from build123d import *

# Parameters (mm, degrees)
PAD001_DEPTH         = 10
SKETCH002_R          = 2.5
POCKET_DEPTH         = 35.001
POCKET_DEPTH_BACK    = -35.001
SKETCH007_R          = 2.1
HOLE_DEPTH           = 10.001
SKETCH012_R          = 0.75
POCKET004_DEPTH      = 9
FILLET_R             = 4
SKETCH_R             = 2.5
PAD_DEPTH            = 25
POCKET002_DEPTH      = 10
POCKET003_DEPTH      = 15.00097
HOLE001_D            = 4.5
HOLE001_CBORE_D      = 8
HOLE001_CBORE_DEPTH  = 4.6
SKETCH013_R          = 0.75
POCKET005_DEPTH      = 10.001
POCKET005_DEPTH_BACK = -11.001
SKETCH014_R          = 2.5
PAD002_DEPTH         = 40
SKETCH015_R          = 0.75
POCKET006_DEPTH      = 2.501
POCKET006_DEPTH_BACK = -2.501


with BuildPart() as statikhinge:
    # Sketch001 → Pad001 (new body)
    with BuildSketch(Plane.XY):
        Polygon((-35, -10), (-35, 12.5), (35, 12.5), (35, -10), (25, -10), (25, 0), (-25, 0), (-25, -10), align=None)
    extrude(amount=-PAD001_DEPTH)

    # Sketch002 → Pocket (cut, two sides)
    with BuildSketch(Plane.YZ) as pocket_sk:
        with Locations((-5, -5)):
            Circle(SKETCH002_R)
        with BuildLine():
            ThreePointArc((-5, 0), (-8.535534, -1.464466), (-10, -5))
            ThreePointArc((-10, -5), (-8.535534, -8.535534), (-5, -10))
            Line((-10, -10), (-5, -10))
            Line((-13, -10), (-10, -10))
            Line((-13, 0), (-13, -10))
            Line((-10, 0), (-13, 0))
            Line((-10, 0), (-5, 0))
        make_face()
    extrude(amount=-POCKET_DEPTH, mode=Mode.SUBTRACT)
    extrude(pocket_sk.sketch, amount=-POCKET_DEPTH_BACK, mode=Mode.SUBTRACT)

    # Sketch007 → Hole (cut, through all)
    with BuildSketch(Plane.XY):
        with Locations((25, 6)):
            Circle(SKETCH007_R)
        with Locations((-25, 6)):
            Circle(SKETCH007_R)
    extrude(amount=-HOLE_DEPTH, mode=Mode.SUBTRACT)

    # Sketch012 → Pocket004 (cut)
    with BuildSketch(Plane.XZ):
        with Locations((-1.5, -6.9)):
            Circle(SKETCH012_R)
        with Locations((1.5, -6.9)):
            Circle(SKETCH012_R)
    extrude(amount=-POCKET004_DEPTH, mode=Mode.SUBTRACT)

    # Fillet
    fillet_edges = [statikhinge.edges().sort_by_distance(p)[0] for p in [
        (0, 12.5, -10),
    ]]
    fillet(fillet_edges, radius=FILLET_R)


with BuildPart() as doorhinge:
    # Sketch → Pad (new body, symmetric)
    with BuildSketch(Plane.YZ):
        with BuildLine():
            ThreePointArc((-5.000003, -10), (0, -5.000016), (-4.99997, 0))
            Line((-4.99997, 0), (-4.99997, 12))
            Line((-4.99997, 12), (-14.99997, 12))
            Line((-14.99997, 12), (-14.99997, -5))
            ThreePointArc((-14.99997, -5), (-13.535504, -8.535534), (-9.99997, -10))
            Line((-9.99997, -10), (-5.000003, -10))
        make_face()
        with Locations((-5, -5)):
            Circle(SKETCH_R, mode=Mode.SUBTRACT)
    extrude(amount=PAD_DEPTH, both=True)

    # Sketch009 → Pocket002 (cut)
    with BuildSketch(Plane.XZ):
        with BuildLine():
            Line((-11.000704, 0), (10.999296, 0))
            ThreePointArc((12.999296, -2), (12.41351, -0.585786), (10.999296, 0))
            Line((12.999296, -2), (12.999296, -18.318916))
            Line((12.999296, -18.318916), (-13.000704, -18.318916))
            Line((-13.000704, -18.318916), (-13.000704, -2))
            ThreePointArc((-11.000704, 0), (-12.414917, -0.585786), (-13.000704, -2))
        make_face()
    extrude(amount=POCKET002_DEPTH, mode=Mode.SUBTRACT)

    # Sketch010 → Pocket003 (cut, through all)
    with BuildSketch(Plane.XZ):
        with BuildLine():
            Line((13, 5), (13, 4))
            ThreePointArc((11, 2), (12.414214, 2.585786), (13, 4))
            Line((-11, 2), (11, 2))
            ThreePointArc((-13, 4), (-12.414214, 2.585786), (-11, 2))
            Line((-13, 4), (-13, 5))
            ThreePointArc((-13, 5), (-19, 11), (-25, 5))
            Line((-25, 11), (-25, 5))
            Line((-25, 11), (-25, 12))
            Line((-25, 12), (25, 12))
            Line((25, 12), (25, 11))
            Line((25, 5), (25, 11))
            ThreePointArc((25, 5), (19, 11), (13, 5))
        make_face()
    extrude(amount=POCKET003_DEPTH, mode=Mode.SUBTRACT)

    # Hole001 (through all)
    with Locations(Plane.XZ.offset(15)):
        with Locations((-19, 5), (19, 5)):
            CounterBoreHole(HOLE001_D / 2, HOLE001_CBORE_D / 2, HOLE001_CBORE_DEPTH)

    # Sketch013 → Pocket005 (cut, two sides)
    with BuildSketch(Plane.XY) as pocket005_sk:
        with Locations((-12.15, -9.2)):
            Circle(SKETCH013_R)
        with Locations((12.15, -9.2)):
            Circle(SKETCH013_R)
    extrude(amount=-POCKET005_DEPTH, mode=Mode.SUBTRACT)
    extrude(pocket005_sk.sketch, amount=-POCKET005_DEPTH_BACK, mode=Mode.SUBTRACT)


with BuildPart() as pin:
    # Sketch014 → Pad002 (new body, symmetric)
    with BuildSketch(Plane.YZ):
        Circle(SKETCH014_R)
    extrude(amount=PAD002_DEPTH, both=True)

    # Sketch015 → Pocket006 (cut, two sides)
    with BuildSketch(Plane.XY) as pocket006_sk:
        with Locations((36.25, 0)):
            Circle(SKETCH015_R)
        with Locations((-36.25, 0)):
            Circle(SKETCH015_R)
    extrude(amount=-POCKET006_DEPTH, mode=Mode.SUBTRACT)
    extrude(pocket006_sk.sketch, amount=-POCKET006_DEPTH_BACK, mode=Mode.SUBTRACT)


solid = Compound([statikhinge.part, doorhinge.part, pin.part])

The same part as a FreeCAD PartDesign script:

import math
import FreeCAD as App
import Part
import Sketcher

V = App.Vector
Q = App.Units.Quantity


def edges_at(feature, points):
    """Names of the edges that pass closest to the given points."""
    edges = feature.Shape.Edges
    near = lambda p: min(range(len(edges)), key=lambda i: edges[i].distToShape(Part.Vertex(*p))[0])
    return sorted({f"Edge{near(p) + 1}" for p in points})

doc = App.newDocument("Part")
body = doc.addObject("PartDesign::Body", "Body")

# Sketch on XY plane
sketch1 = doc.addObject("Sketcher::SketchObject", "Sketch")
body.addObject(sketch1)
sketch1.AttachmentSupport = (doc.XY_Plane, [""])
sketch1.MapMode = "FlatFace"
sketch1.addGeometry([
    Part.LineSegment(V(-35, 12.5, 0), V(-35, -10, 0)),  # 0
    Part.LineSegment(V(-35, -10, 0), V(-25, -10, 0)),  # 1
    Part.LineSegment(V(-25, -10, 0), V(-25, 0, 0)),  # 2
    Part.LineSegment(V(-25, 0, 0), V(25, 0, 0)),  # 3
    Part.LineSegment(V(25, 0, 0), V(25, -10, 0)),  # 4
    Part.LineSegment(V(25, -10, 0), V(35, -10, 0)),  # 5
    Part.LineSegment(V(35, -10, 0), V(35, 12.5, 0)),  # 6
    Part.LineSegment(V(35, 12.5, 0), V(-35, 12.5, 0)),  # 7
], False)
sketch1.addConstraint([
    Sketcher.Constraint("Coincident", 0, 2, 1, 1),
    Sketcher.Constraint("Coincident", 1, 2, 2, 1),
    Sketcher.Constraint("Coincident", 2, 2, 3, 1),
    Sketcher.Constraint("Coincident", 3, 2, 4, 1),
    Sketcher.Constraint("Coincident", 4, 2, 5, 1),
    Sketcher.Constraint("Coincident", 5, 2, 6, 1),
    Sketcher.Constraint("Coincident", 6, 2, 7, 1),
    Sketcher.Constraint("Coincident", 7, 2, 0, 1),
    Sketcher.Constraint("Vertical", 0),
    Sketcher.Constraint("Horizontal", 1),
    Sketcher.Constraint("Vertical", 2),
    Sketcher.Constraint("Horizontal", 3),
    Sketcher.Constraint("Vertical", 4),
    Sketcher.Constraint("Horizontal", 5),
    Sketcher.Constraint("Vertical", 6),
    Sketcher.Constraint("Horizontal", 7),
    Sketcher.Constraint("Symmetric", 2, 2, 3, 2, -1, 1),
    Sketcher.Constraint("Symmetric", 0, 2, 5, 2, -2),
    Sketcher.Constraint("Equal", 5, 2),
    Sketcher.Constraint("DistanceX", 1, 1, 1, 2, Q("10 mm")),
    Sketcher.Constraint("DistanceX", 3, 1, 3, 2, Q("50 mm")),
    Sketcher.Constraint("DistanceY", 0, 2, 0, 1, Q("22.5 mm")),
])
pad1 = doc.addObject("PartDesign::Pad", "Pad")
body.addObject(pad1)
pad1.Profile = sketch1
pad1.Length = 10
pad1.Reversed = True

# Sketch on YZ plane
sketch2 = doc.addObject("Sketcher::SketchObject", "Sketch001")
body.addObject(sketch2)
sketch2.AttachmentSupport = (doc.YZ_Plane, [""])
sketch2.MapMode = "FlatFace"
sketch2.addGeometry([
    Part.Circle(V(-5, -5, 0), V(0, 0, 1), 2.5),  # 0
    Part.ArcOfCircle(Part.Circle(V(-5, -5, 0), V(0, 0, 1), 5), math.radians(89.999996), math.radians(180.000004)),  # 1
    Part.LineSegment(V(-5, 0, 0), V(-13, 0, 0)),  # 2
    Part.LineSegment(V(-13, 0, 0), V(-13, -10, 0)),  # 3
    Part.LineSegment(V(-13, -10, 0), V(-5, -10, 0)),  # 4
    Part.ArcOfCircle(Part.Circle(V(-5, -5, 0), V(0, 0, 1), 5), math.radians(179.999996), math.radians(270.000004)),  # 5
], False)
sketch2.addConstraint([
    Sketcher.Constraint("Tangent", 1, 1, 2, 1),
    Sketcher.Constraint("Coincident", 2, 2, 3, 1),
    Sketcher.Constraint("Coincident", 3, 2, 4, 1),
    Sketcher.Constraint("Tangent", 4, 2, 5, 2),
    Sketcher.Constraint("Tangent", 5, 1, 1, 2),
    Sketcher.Constraint("Horizontal", 2),
    Sketcher.Constraint("Vertical", 3),
    Sketcher.Constraint("Horizontal", 4),
    Sketcher.Constraint("Coincident", 1, 3, 0, 3),
    Sketcher.Constraint("Equal", 1, 5),
    Sketcher.Constraint("PointOnObject", 1, 1, -1),
    Sketcher.Constraint("Horizontal", 1, 3, 5, 1),
    Sketcher.Constraint("Diameter", 0, Q("5 mm")),
    Sketcher.Constraint("Radius", 1, Q("5 mm")),
    Sketcher.Constraint("DistanceX", 2, 2, 2, 1, Q("8 mm")),
    Sketcher.Constraint("DistanceX", 0, 3, -1, 1, Q("5 mm")),
])
pocket1 = doc.addObject("PartDesign::Pocket", "Pocket")
body.addObject(pocket1)
pocket1.Profile = sketch2
pocket1.Type = "ThroughAll"
pocket1.Midplane = True

# Sketch on XY plane
sketch3 = doc.addObject("Sketcher::SketchObject", "Sketch002")
body.addObject(sketch3)
sketch3.AttachmentSupport = (doc.XY_Plane, [""])
sketch3.MapMode = "FlatFace"
sketch3.addGeometry([
    Part.Circle(V(25, 6, 0), V(0, 0, 1), 2.1),
    Part.Circle(V(-25, 6, 0), V(0, 0, 1), 2.1),
], False)
sketch3.addConstraint([
    Sketcher.Constraint("Equal", 0, 1),
    Sketcher.Constraint("Symmetric", 0, 3, 1, 3, -2),
    Sketcher.Constraint("Diameter", 0, Q("4.2 mm")),
    Sketcher.Constraint("DistanceX", -1, 1, 0, 3, Q("25 mm")),
    Sketcher.Constraint("DistanceY", -1, 1, 0, 3, Q("6 mm")),
])
pocket2 = doc.addObject("PartDesign::Pocket", "Pocket001")
body.addObject(pocket2)
pocket2.Profile = sketch3
pocket2.Type = "ThroughAll"

# Sketch on XZ plane
sketch4 = doc.addObject("Sketcher::SketchObject", "Sketch003")
body.addObject(sketch4)
sketch4.AttachmentSupport = (doc.XZ_Plane, [""])
sketch4.MapMode = "FlatFace"
sketch4.addGeometry([
    Part.Circle(V(-1.5, -6.9, 0), V(0, 0, 1), 0.75),
    Part.Circle(V(1.5, -6.9, 0), V(0, 0, 1), 0.75),
], False)
sketch4.addConstraint([
    Sketcher.Constraint("Equal", 0, 1),
    Sketcher.Constraint("Symmetric", 0, 3, 1, 3, -2),
    Sketcher.Constraint("Diameter", 0, Q("1.5 mm")),
    Sketcher.Constraint("DistanceX", 0, 3, 1, 3, Q("3 mm")),
    Sketcher.Constraint("DistanceY", 0, 3, -1, 1, Q("6.9 mm")),
])
pocket3 = doc.addObject("PartDesign::Pocket", "Pocket002")
body.addObject(pocket3)
pocket3.Profile = sketch4
pocket3.Length = 9
doc.recompute()

fillet = doc.addObject("PartDesign::Fillet", "Fillet")
body.addObject(fillet)
fillet.Base = (pocket3, edges_at(pocket3, [(0, 12.5, -10)]))
fillet.Radius = 4
body2 = doc.addObject("PartDesign::Body", "Body001")

# Sketch on YZ plane
sketch5 = doc.addObject("Sketcher::SketchObject", "Sketch004")
body2.addObject(sketch5)
sketch5.AttachmentSupport = (doc.getObject("YZ_Plane001"), [""])
sketch5.MapMode = "FlatFace"
sketch5.addGeometry([
    Part.ArcOfCircle(Part.Circle(V(-5, -5, 0), V(0, 0, 1), 5), math.radians(-90.000034), math.radians(89.999656)),  # 0
    Part.LineSegment(V(-4.99997, 0, 0), V(-4.99997, 12, 0)),  # 1
    Part.LineSegment(V(-4.99997, 12, 0), V(-14.99997, 12, 0)),  # 2
    Part.LineSegment(V(-14.99997, 12, 0), V(-14.99997, -5, 0)),  # 3
    Part.ArcOfCircle(Part.Circle(V(-9.99997, -5, 0), V(0, 0, 1), 5), math.radians(179.999996), math.radians(270.000004)),  # 4
    Part.LineSegment(V(-9.99997, -10, 0), V(-5.000003, -10, 0)),  # 5
    Part.Circle(V(-5, -5, 0), V(0, 0, 1), 2.5),  # 6
], False)
sketch5.addConstraint([
    Sketcher.Constraint("Coincident", 0, 2, 1, 1),
    Sketcher.Constraint("Coincident", 1, 2, 2, 1),
    Sketcher.Constraint("Coincident", 2, 2, 3, 1),
    Sketcher.Constraint("Tangent", 3, 2, 4, 1),
    Sketcher.Constraint("Tangent", 4, 2, 5, 1),
    Sketcher.Constraint("Tangent", 5, 2, 0, 1),
    Sketcher.Constraint("Vertical", 1),
    Sketcher.Constraint("Horizontal", 2),
    Sketcher.Constraint("Vertical", 3),
    Sketcher.Constraint("Horizontal", 5),
    Sketcher.Constraint("Coincident", 6, 3, 0, 3),
    Sketcher.Constraint("Equal", 0, 4),
    Sketcher.Constraint("PointOnObject", 0, 2, -1),
    Sketcher.Constraint("Diameter", 6, Q("5 mm")),
    Sketcher.Constraint("Radius", 0, Q("5 mm")),
    Sketcher.Constraint("DistanceX", 2, 2, 2, 1, Q("10 mm")),
    Sketcher.Constraint("DistanceY", 1, 1, 1, 2, Q("12 mm")),
    Sketcher.Constraint("DistanceX", 0, 3, -1, 1, Q("5 mm")),
    Sketcher.Constraint("DistanceX", 5, 1, 5, 2, Q("4.999967 mm")),
])
pad2 = doc.addObject("PartDesign::Pad", "Pad001")
body2.addObject(pad2)
pad2.Profile = sketch5
pad2.Length = 50
pad2.Midplane = True

# Sketch on XZ plane
sketch6 = doc.addObject("Sketcher::SketchObject", "Sketch005")
body2.addObject(sketch6)
sketch6.AttachmentSupport = (doc.getObject("XZ_Plane001"), [""])
sketch6.MapMode = "FlatFace"
sketch6.addGeometry([
    Part.LineSegment(V(10.999296, 0, 0), V(-11.000704, 0, 0)),  # 0
    Part.ArcOfCircle(Part.Circle(V(-11.000704, -2, 0), V(0, 0, 1), 2), math.radians(90.000006), math.radians(179.999994)),  # 1
    Part.LineSegment(V(-13.000704, -2, 0), V(-13.000704, -18.318916, 0)),  # 2
    Part.LineSegment(V(-13.000704, -18.318916, 0), V(12.999296, -18.318916, 0)),  # 3
    Part.LineSegment(V(12.999296, -18.318916, 0), V(12.999296, -2, 0)),  # 4
    Part.ArcOfCircle(Part.Circle(V(10.999297, -1.999999, 0), V(0, 0, 1), 1.999999), math.radians(-0.000043), math.radians(90.000043)),  # 5
], False)
sketch6.addConstraint([
    Sketcher.Constraint("Tangent", 0, 2, 1, 1),
    Sketcher.Constraint("Tangent", 1, 2, 2, 1),
    Sketcher.Constraint("Coincident", 2, 2, 3, 1),
    Sketcher.Constraint("Coincident", 3, 2, 4, 1),
    Sketcher.Constraint("Tangent", 4, 2, 5, 1),
    Sketcher.Constraint("Tangent", 5, 2, 0, 1),
    Sketcher.Constraint("Horizontal", 0),
    Sketcher.Constraint("Vertical", 2),
    Sketcher.Constraint("Horizontal", 3),
    Sketcher.Constraint("Vertical", 4),
    Sketcher.Constraint("Equal", 1, 5),
    Sketcher.Constraint("PointOnObject", 0, 2, -1),
    Sketcher.Constraint("Radius", 1, Q("2 mm")),
    Sketcher.Constraint("DistanceX", 0, 2, 0, 1, Q("22 mm")),
    Sketcher.Constraint("DistanceY", 2, 2, 2, 1, Q("16.318916 mm")),
    Sketcher.Constraint("DistanceX", 1, 3, -1, 1, Q("11.000704 mm")),
])
pocket4 = doc.addObject("PartDesign::Pocket", "Pocket003")
body2.addObject(pocket4)
pocket4.Profile = sketch6
pocket4.Length = 10
pocket4.Reversed = True

# Sketch on XZ plane
sketch7 = doc.addObject("Sketcher::SketchObject", "Sketch006")
body2.addObject(sketch7)
sketch7.AttachmentSupport = (doc.getObject("XZ_Plane001"), [""])
sketch7.MapMode = "FlatFace"
sketch7.addGeometry([
    Part.LineSegment(V(13, 4, 0), V(13, 5, 0)),  # 0
    Part.ArcOfCircle(Part.Circle(V(19, 5, 0), V(0, 0, 1), 6), math.radians(0), math.radians(180)),  # 1
    Part.LineSegment(V(25, 5, 0), V(25, 12, 0)),  # 2
    Part.LineSegment(V(25, 12, 0), V(-25, 12, 0)),  # 3
    Part.LineSegment(V(-25, 12, 0), V(-25, 5, 0)),  # 4
    Part.ArcOfCircle(Part.Circle(V(-19, 5, 0), V(0, 0, 1), 6), math.radians(0), math.radians(180)),  # 5
    Part.LineSegment(V(-13, 5, 0), V(-13, 4, 0)),  # 6
    Part.ArcOfCircle(Part.Circle(V(-11.000001, 3.999999, 0), V(0, 0, 1), 1.999999), math.radians(179.999957), math.radians(270.000043)),  # 7
    Part.LineSegment(V(-11, 2, 0), V(11, 2, 0)),  # 8
    Part.ArcOfCircle(Part.Circle(V(11.000001, 3.999999, 0), V(0, 0, 1), 1.999999), math.radians(-90.000043), math.radians(0.000043)),  # 9
], False)
sketch7.addConstraint([
    Sketcher.Constraint("Tangent", 0, 2, 1, 2),
    Sketcher.Constraint("Tangent", 1, 1, 2, 1),
    Sketcher.Constraint("Coincident", 2, 2, 3, 1),
    Sketcher.Constraint("Coincident", 3, 2, 4, 1),
    Sketcher.Constraint("Tangent", 4, 2, 5, 2),
    Sketcher.Constraint("Tangent", 5, 1, 6, 1),
    Sketcher.Constraint("Tangent", 6, 2, 7, 1),
    Sketcher.Constraint("Tangent", 7, 2, 8, 1),
    Sketcher.Constraint("Tangent", 8, 2, 9, 1),
    Sketcher.Constraint("Tangent", 9, 2, 0, 1),
    Sketcher.Constraint("Vertical", 0),
    Sketcher.Constraint("Vertical", 2),
    Sketcher.Constraint("Horizontal", 3),
    Sketcher.Constraint("Vertical", 4),
    Sketcher.Constraint("Vertical", 6),
    Sketcher.Constraint("Horizontal", 8),
    Sketcher.Constraint("Equal", 1, 5),
    Sketcher.Constraint("Equal", 7, 9),
    Sketcher.Constraint("Symmetric", 1, 3, 5, 3, -2),
    Sketcher.Constraint("Radius", 1, Q("6 mm")),
    Sketcher.Constraint("Radius", 7, Q("1.999999 mm")),
    Sketcher.Constraint("DistanceX", 3, 2, 3, 1, Q("50 mm")),
    Sketcher.Constraint("DistanceY", 0, 1, 0, 2, Q("1 mm")),
    Sketcher.Constraint("DistanceY", 2, 1, 2, 2, Q("7 mm")),
    Sketcher.Constraint("DistanceY", -1, 1, 1, 3, Q("5 mm")),
])
pocket5 = doc.addObject("PartDesign::Pocket", "Pocket004")
body2.addObject(pocket5)
pocket5.Profile = sketch7
pocket5.Type = "ThroughAll"
pocket5.Reversed = True

# Sketch on XZ plane
sketch8 = doc.addObject("Sketcher::SketchObject", "Sketch007")
body2.addObject(sketch8)
sketch8.AttachmentSupport = (doc.getObject("XZ_Plane001"), [""])
sketch8.MapMode = "FlatFace"
sketch8.AttachmentOffset = App.Placement(V(0, 0, 15), App.Rotation())
sketch8.addGeometry([
    Part.Circle(V(-19, 5, 0), V(0, 0, 1), 2.25),
    Part.Circle(V(19, 5, 0), V(0, 0, 1), 2.25),
], False)
sketch8.addConstraint([
    Sketcher.Constraint("Equal", 0, 1),
    Sketcher.Constraint("Symmetric", 0, 3, 1, 3, -2),
    Sketcher.Constraint("Diameter", 0, Q("4.5 mm")),
    Sketcher.Constraint("DistanceX", 0, 3, -1, 1, Q("19 mm")),
    Sketcher.Constraint("DistanceY", -1, 1, 0, 3, Q("5 mm")),
])
doc.recompute()
hole = doc.addObject("PartDesign::Hole", "Hole")
body2.addObject(hole)
hole.Profile = sketch8
hole.ThreadType = "None"
hole.Diameter = 4.5
hole.DepthType = "ThroughAll"
hole.HoleCutType = "Counterbore"
hole.HoleCutDiameter = 8
hole.HoleCutDepth = 4.6

# Sketch on XY plane
sketch9 = doc.addObject("Sketcher::SketchObject", "Sketch008")
body2.addObject(sketch9)
sketch9.AttachmentSupport = (doc.getObject("XY_Plane001"), [""])
sketch9.MapMode = "FlatFace"
sketch9.addGeometry([
    Part.Circle(V(-12.15, -9.2, 0), V(0, 0, 1), 0.75),
    Part.Circle(V(12.15, -9.2, 0), V(0, 0, 1), 0.75),
], False)
sketch9.addConstraint([
    Sketcher.Constraint("Equal", 0, 1),
    Sketcher.Constraint("Symmetric", 0, 3, 1, 3, -2),
    Sketcher.Constraint("Diameter", 0, Q("1.5 mm")),
    Sketcher.Constraint("DistanceY", 0, 3, -1, 1, Q("9.2 mm")),
    Sketcher.Constraint("DistanceX", 0, 3, 1, 3, Q("24.3 mm")),
])
pocket6 = doc.addObject("PartDesign::Pocket", "Pocket005")
body2.addObject(pocket6)
pocket6.Profile = sketch9
pocket6.Type = "ThroughAll"
pocket6.Midplane = True
body3 = doc.addObject("PartDesign::Body", "Body002")

# Sketch on YZ plane
sketch10 = doc.addObject("Sketcher::SketchObject", "Sketch009")
body3.addObject(sketch10)
sketch10.AttachmentSupport = (doc.getObject("YZ_Plane002"), [""])
sketch10.MapMode = "FlatFace"
sketch10.addGeometry(Part.Circle(V(0, 0, 0), V(0, 0, 1), 2.5), False)
sketch10.addConstraint([
    Sketcher.Constraint("Coincident", 0, 3, -1, 1),
    Sketcher.Constraint("Diameter", 0, Q("5 mm")),
])
pad3 = doc.addObject("PartDesign::Pad", "Pad002")
body3.addObject(pad3)
pad3.Profile = sketch10
pad3.Length = 80
pad3.Midplane = True

# Sketch on XY plane
sketch11 = doc.addObject("Sketcher::SketchObject", "Sketch010")
body3.addObject(sketch11)
sketch11.AttachmentSupport = (doc.getObject("XY_Plane002"), [""])
sketch11.MapMode = "FlatFace"
sketch11.addGeometry([
    Part.Circle(V(36.25, 0, 0), V(0, 0, 1), 0.75),
    Part.Circle(V(-36.25, 0, 0), V(0, 0, 1), 0.75),
], False)
sketch11.addConstraint([
    Sketcher.Constraint("Equal", 0, 1),
    Sketcher.Constraint("Symmetric", 0, 3, 1, 3, -1, 1),
    Sketcher.Constraint("PointOnObject", 0, 3, -1),
    Sketcher.Constraint("Diameter", 0, Q("1.5 mm")),
    Sketcher.Constraint("DistanceX", 1, 3, 0, 3, Q("72.5 mm")),
])
pocket7 = doc.addObject("PartDesign::Pocket", "Pocket006")
body3.addObject(pocket7)
pocket7.Profile = sketch11
pocket7.Type = "ThroughAll"
pocket7.Midplane = True

doc.recompute()
